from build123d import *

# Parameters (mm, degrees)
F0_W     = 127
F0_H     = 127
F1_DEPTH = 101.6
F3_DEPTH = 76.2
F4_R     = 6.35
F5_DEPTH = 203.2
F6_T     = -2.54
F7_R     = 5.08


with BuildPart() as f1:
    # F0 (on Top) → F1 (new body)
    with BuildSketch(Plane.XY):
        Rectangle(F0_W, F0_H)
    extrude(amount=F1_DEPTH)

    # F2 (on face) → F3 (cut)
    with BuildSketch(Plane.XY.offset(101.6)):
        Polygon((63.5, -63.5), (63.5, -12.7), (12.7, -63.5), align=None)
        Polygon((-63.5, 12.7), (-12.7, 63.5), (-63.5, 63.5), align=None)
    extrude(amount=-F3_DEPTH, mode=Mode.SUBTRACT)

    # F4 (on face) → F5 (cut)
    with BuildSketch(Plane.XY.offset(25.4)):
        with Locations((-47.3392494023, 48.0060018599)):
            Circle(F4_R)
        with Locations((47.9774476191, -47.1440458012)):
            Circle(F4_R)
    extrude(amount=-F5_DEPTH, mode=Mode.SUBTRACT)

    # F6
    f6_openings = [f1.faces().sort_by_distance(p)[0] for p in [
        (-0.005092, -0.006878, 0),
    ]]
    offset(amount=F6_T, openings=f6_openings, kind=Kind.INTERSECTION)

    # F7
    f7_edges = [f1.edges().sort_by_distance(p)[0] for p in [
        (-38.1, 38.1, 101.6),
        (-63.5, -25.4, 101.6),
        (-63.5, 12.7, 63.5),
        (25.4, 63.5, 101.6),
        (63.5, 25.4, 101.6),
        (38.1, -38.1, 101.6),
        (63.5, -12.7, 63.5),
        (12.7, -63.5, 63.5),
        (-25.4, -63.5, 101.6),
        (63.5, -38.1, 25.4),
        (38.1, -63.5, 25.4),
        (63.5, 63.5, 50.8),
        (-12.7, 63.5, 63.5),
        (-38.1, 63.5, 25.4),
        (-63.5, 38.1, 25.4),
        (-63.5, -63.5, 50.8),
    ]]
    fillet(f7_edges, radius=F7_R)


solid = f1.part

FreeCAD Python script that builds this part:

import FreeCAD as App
import Part
import Sketcher
Q = App.Units.Quantity


def edges_at(feature, points):
    """Names of the edges that pass closest to the given points."""
    edges = feature.Shape.Edges
    near = lambda p: min(range(len(edges)), key=lambda i: edges[i].distToShape(Part.Vertex(*p))[0])
    return sorted({f"Edge{near(p) + 1}" for p in points})


def faces_at(feature, points):
    """Names of the faces that lie closest to the given points."""
    faces = feature.Shape.Faces
    near = lambda p: min(range(len(faces)), key=lambda i: faces[i].distToShape(Part.Vertex(*p))[0])
    return sorted({f"Face{near(p) + 1}" for p in points})

doc = App.newDocument("Part")
body = doc.addObject("PartDesign::Body", "Body")

# Sketch on XY plane
sketch1 = body.newObject("Sketcher::SketchObject", "Sketch")
sketch1.AttachmentSupport = (doc.getObject("XY_Plane"), [""])
sketch1.MapMode = "FlatFace"
sketch1.addGeometry(Part.LineSegment(App.Vector(-64, 64, 0), App.Vector(-64, -64, 0)), False)
sketch1.addGeometry(Part.LineSegment(App.Vector(-64, -64, 0), App.Vector(64, -64, 0)), False)
sketch1.addGeometry(Part.LineSegment(App.Vector(64, -64, 0), App.Vector(64, 64, 0)), False)
sketch1.addGeometry(Part.LineSegment(App.Vector(64, 64, 0), App.Vector(-64, 64, 0)), False)
sketch1.addConstraint(Sketcher.Constraint("Coincident", 0, 2, 1, 1))
sketch1.addConstraint(Sketcher.Constraint("Coincident", 1, 2, 2, 1))
sketch1.addConstraint(Sketcher.Constraint("Coincident", 2, 2, 3, 1))
sketch1.addConstraint(Sketcher.Constraint("Coincident", 3, 2, 0, 1))
sketch1.addConstraint(Sketcher.Constraint("Vertical", 0))
sketch1.addConstraint(Sketcher.Constraint("Horizontal", 1))
sketch1.addConstraint(Sketcher.Constraint("Vertical", 2))
sketch1.addConstraint(Sketcher.Constraint("Horizontal", 3))
sketch1.addConstraint(Sketcher.Constraint("Symmetric", 0, 2, 2, 2, -1, 1))
sketch1.addConstraint(Sketcher.Constraint("Equal", 3, 0))
sketch1.addConstraint(Sketcher.Constraint("DistanceX", 1, 1, 1, 2, Q("5 in")))
pad1 = body.newObject("PartDesign::Pad", "Pad")
pad1.Profile = sketch1
pad1.Length = Q("4 in")

# Sketch on XY plane
sketch2 = body.newObject("Sketcher::SketchObject", "Sketch001")
sketch2.AttachmentSupport = (doc.getObject("XY_Plane"), [""])
sketch2.MapMode = "FlatFace"
sketch2.AttachmentOffset = App.Placement(App.Vector(0, 0, 4 * 25.4), App.Rotation())
sketch2.addGeometry(Part.LineSegment(App.Vector(64, -64, 0), App.Vector(64, -13, 0)), False)
sketch2.addGeometry(Part.LineSegment(App.Vector(64, -13, 0), App.Vector(13, -64, 0)), False)
sketch2.addGeometry(Part.LineSegment(App.Vector(13, -64, 0), App.Vector(64, -64, 0)), False)
sketch2.addGeometry(Part.LineSegment(App.Vector(-64, 13, 0), App.Vector(-13, 64, 0)), False)
sketch2.addGeometry(Part.LineSegment(App.Vector(-13, 64, 0), App.Vector(-64, 64, 0)), False)
sketch2.addGeometry(Part.LineSegment(App.Vector(-64, 64, 0), App.Vector(-64, 13, 0)), False)
sketch2.addConstraint(Sketcher.Constraint("Coincident", 0, 2, 1, 1))
sketch2.addConstraint(Sketcher.Constraint("Coincident", 1, 2, 2, 1))
sketch2.addConstraint(Sketcher.Constraint("Coincident", 2, 2, 0, 1))
sketch2.addConstraint(Sketcher.Constraint("Coincident", 3, 2, 4, 1))
sketch2.addConstraint(Sketcher.Constraint("Coincident", 4, 2, 5, 1))
sketch2.addConstraint(Sketcher.Constraint("Coincident", 5, 2, 3, 1))
sketch2.addConstraint(Sketcher.Constraint("Vertical", 0))
sketch2.addConstraint(Sketcher.Constraint("Horizontal", 2))
sketch2.addConstraint(Sketcher.Constraint("Horizontal", 4))
sketch2.addConstraint(Sketcher.Constraint("Vertical", 5))
sketch2.addConstraint(Sketcher.Constraint("Symmetric", 1, 2, 3, 2, -1, 1))
sketch2.addConstraint(Sketcher.Constraint("Symmetric", 0, 2, 5, 2, -1, 1))
sketch2.addConstraint(Sketcher.Constraint("Equal", 4, 0))
sketch2.addConstraint(Sketcher.Constraint("DistanceX", 2, 1, 2, 2, Q("2 in")))
sketch2.addConstraint(Sketcher.Constraint("DistanceX", 3, 2, 0, 2, Q("3 in")))
sketch2.addConstraint(Sketcher.Constraint("DistanceY", 0, 2, 3, 2, Q("3 in")))
pocket1 = body.newObject("PartDesign::Pocket", "Pocket")
pocket1.Profile = sketch2
pocket1.Length = Q("3 in")

# Sketch on XY plane
sketch3 = body.newObject("Sketcher::SketchObject", "Sketch002")
sketch3.AttachmentSupport = (doc.getObject("XY_Plane"), [""])
sketch3.MapMode = "FlatFace"
sketch3.AttachmentOffset = App.Placement(App.Vector(0, 0, 1 * 25.4), App.Rotation())
sketch3.addGeometry(Part.Circle(App.Vector(-47, 48, 0), App.Vector(0, 0, 1), 6), False)
sketch3.addGeometry(Part.Circle(App.Vector(48, -47, 0), App.Vector(0, 0, 1), 6), False)
sketch3.addConstraint(Sketcher.Constraint("Equal", 0, 1))
sketch3.addConstraint(Sketcher.Constraint("Diameter", 0, Q("0.5 in")))
sketch3.addConstraint(Sketcher.Constraint("DistanceY", -1, 1, 0, 3, Q("1.8900001 in")))
sketch3.addConstraint(Sketcher.Constraint("DistanceX", 0, 3, -1, 1, Q("47.339249 mm")))
sketch3.addConstraint(Sketcher.Constraint("DistanceX", -1, 1, 1, 3, Q("47.977448 mm")))
sketch3.addConstraint(Sketcher.Constraint("DistanceY", 1, 3, -1, 1, Q("47.144046 mm")))
pocket2 = body.newObject("PartDesign::Pocket", "Pocket001")
pocket2.Profile = sketch3
pocket2.Length = Q("8 in")
doc.recompute()

thickness = body.newObject("PartDesign::Thickness", "Thickness")
thickness.Base = (pocket2, faces_at(pocket2, [(0, 0, 0)]))
thickness.Value = Q("0.1 in")
thickness.Reversed = True
thickness.Join = "Intersection"
doc.recompute()

fillet = body.newObject("PartDesign::Fillet", "Fillet")
fillet.Base = (thickness, edges_at(thickness, [
    (-38.1, 38.1, 101.6),
    (-63.5, -25.4, 101.6),
    (-63.5, 12.7, 63.5),
    (25.4, 63.5, 101.6),
    (63.5, 25.4, 101.6),
    (38.1, -38.1, 101.6),
    (63.5, -12.7, 63.5),
    (12.7, -63.5, 63.5),
    (-25.4, -63.5, 101.6),
    (63.5, -38.1, 25.4),
    (38.1, -63.5, 25.4),
    (63.5, 63.5, 50.8),
    (-12.7, 63.5, 63.5),
    (-38.1, 63.5, 25.4),
    (-63.5, 38.1, 25.4),
    (-63.5, -63.5, 50.8),
]))
fillet.Radius = Q("0.2 in")

doc.recompute()
